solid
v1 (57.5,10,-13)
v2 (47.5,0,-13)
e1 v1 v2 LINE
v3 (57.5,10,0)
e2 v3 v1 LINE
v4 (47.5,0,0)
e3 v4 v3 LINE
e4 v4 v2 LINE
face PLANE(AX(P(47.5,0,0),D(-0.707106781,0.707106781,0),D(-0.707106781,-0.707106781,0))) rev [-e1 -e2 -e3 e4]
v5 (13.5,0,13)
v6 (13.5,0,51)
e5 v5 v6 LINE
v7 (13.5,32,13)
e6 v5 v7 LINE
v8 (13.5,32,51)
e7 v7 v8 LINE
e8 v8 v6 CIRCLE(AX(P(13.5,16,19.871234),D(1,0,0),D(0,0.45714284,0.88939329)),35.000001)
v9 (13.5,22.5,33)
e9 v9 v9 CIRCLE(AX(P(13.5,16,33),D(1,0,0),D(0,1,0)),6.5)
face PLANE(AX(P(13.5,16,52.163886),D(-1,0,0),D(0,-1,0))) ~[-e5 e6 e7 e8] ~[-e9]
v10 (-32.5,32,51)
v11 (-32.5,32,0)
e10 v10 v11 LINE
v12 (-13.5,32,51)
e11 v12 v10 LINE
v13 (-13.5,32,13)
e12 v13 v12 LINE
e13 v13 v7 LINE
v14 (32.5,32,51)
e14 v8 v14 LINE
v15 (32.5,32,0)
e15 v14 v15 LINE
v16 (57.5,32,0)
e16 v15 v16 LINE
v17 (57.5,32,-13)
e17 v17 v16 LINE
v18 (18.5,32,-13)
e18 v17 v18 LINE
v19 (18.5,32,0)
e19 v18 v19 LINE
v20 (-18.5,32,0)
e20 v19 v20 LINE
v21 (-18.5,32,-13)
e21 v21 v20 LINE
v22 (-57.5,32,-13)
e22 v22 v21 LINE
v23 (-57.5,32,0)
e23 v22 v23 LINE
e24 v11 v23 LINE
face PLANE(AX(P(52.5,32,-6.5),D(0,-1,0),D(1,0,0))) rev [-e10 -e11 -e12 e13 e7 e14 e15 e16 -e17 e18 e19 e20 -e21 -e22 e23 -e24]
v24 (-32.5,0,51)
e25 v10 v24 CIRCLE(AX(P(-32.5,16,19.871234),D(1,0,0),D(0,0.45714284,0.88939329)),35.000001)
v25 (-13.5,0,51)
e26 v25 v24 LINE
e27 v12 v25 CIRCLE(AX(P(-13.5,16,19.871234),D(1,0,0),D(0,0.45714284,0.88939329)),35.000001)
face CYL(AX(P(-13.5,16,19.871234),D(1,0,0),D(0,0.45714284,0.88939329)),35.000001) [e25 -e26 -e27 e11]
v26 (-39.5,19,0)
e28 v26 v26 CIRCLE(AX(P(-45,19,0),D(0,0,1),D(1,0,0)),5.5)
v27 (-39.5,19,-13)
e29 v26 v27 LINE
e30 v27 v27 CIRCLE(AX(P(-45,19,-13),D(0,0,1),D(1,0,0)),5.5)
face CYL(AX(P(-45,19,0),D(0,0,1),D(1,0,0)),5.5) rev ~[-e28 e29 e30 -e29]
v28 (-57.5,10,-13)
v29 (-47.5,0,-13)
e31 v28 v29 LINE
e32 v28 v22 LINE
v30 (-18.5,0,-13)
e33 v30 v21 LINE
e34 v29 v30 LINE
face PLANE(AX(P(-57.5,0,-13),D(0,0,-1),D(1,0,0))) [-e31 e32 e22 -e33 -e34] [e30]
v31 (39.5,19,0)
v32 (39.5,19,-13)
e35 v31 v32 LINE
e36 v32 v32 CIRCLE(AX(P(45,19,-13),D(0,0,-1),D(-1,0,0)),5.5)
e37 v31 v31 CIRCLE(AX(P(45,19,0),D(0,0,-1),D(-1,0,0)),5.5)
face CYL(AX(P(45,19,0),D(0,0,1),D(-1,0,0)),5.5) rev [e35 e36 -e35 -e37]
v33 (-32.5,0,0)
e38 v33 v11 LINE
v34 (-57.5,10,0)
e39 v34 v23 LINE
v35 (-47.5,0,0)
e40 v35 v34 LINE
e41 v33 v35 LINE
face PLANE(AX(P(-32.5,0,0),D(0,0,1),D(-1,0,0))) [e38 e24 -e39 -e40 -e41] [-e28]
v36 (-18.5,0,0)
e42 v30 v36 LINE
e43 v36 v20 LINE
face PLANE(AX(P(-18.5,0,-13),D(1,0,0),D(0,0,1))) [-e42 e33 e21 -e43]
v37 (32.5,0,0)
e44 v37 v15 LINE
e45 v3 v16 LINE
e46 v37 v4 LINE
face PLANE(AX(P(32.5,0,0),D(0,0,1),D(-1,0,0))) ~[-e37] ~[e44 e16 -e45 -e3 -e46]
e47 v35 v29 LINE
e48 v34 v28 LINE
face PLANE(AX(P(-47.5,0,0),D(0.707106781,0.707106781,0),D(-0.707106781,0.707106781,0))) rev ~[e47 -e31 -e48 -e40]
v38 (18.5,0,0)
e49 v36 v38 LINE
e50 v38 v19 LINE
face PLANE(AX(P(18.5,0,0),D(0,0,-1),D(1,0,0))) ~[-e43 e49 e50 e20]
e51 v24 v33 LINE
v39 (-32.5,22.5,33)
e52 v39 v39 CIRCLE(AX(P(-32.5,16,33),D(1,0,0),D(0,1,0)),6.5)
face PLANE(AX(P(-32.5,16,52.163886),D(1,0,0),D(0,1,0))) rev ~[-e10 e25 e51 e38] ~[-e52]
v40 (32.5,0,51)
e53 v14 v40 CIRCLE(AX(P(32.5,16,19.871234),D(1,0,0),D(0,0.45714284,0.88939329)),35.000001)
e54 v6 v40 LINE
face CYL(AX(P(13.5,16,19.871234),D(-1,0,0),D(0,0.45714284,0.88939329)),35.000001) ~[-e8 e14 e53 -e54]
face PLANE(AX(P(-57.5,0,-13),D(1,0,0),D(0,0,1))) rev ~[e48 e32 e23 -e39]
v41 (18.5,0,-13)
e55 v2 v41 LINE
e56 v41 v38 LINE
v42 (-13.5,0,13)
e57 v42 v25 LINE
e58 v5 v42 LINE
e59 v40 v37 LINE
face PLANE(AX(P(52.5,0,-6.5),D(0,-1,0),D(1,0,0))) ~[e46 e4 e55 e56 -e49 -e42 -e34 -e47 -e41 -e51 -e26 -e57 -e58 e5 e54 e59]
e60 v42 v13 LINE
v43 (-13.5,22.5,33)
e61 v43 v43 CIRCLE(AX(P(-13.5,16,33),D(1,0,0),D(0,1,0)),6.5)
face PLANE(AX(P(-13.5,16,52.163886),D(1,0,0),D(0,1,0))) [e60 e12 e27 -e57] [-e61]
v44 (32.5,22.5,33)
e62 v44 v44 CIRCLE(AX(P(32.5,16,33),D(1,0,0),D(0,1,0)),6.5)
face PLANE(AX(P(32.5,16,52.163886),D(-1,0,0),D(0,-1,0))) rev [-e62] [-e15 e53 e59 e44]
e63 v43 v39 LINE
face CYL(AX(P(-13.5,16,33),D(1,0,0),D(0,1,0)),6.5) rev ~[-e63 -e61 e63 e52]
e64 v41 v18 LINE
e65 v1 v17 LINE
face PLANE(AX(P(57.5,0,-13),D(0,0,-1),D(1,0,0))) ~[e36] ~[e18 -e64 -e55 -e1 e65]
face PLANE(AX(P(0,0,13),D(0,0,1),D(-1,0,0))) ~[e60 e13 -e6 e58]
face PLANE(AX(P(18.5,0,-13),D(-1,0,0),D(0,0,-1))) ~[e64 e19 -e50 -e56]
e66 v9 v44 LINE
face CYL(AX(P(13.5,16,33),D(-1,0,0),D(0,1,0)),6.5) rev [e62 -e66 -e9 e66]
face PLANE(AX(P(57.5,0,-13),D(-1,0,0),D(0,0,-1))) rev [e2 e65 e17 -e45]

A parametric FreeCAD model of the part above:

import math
import FreeCAD as App
import Part
import Sketcher

V = App.Vector
Q = App.Units.Quantity


def add_polygon(sketch, points):
    """Adds a closed chain of lines whose ends are joined by coincident constraints."""
    first, n = sketch.GeometryCount, len(points)
    for a, b in zip(points, points[1:] + points[:1]):
        sketch.addGeometry(Part.LineSegment(App.Vector(*a, 0), App.Vector(*b, 0)), False)
    for i in range(n):
        sketch.addConstraint(Sketcher.Constraint("Coincident", first + i, 2, first + (i + 1) % n, 1))

doc = App.newDocument("Part")
body = doc.addObject("PartDesign::Body", "Body")

sketch1 = body.newObject("Sketcher::SketchObject", "Sketch")
sketch1.AttachmentSupport = (doc.getObject("XZ_Plane"), [""])
sketch1.MapMode = "FlatFace"
add_polygon(sketch1, [(-58, 0), (-58, -13), (-18, -13), (-18, 0), (0, 0), (0, 13), (-14, 13), (-14, 51), (-32, 51), (-32, 0)])
sketch1.addConstraint(Sketcher.Constraint("Vertical", 0))
sketch1.addConstraint(Sketcher.Constraint("Horizontal", 1))
sketch1.addConstraint(Sketcher.Constraint("Vertical", 2))
sketch1.addConstraint(Sketcher.Constraint("Horizontal", 3))
sketch1.addConstraint(Sketcher.Constraint("Vertical", 4))
sketch1.addConstraint(Sketcher.Constraint("Horizontal", 5))
sketch1.addConstraint(Sketcher.Constraint("Vertical", 6))
sketch1.addConstraint(Sketcher.Constraint("Horizontal", 7))
sketch1.addConstraint(Sketcher.Constraint("Vertical", 8))
sketch1.addConstraint(Sketcher.Constraint("Horizontal", 9))
sketch1.addConstraint(Sketcher.Constraint("Coincident", 3, 2, -1, 1))
sketch1.addConstraint(Sketcher.Constraint("PointOnObject", 8, 2, -1))
sketch1.addConstraint(Sketcher.Constraint("Equal", 2, 4))
sketch1.addConstraint(Sketcher.Constraint("DistanceX", 1, 1, 1, 2, Q("39 mm")))
sketch1.addConstraint(Sketcher.Constraint("DistanceX", 7, 2, 7, 1, Q("19 mm")))
sketch1.addConstraint(Sketcher.Constraint("DistanceX", 9, 2, 9, 1, Q("25 mm")))
sketch1.addConstraint(Sketcher.Constraint("DistanceY", 0, 2, 0, 1, Q("13 mm")))
sketch1.addConstraint(Sketcher.Constraint("DistanceY", 6, 1, 6, 2, Q("38 mm")))
sketch1.addConstraint(Sketcher.Constraint("DistanceX", 3, 1, 3, 2, Q("18.5 mm")))
pad1 = body.newObject("PartDesign::Pad", "Pad")
pad1.Profile = sketch1
pad1.Length = 32
pad1.Reversed = True

sketch2 = body.newObject("Sketcher::SketchObject", "Sketch001")
sketch2.AttachmentSupport = (doc.getObject("XY_Plane"), [""])
sketch2.MapMode = "FlatFace"
sketch2.addGeometry(Part.Circle(V(-45, 19, 0), V(0, 0, 1), 6), False)
add_polygon(sketch2, [(-58, 0), (-48, 0), (-58, 10)])
sketch2.addConstraint(Sketcher.Constraint("Horizontal", 1))
sketch2.addConstraint(Sketcher.Constraint("Vertical", 3))
sketch2.addConstraint(Sketcher.Constraint("PointOnObject", 1, 2, -1))
sketch2.addConstraint(Sketcher.Constraint("Equal", 1, 3))
sketch2.addConstraint(Sketcher.Constraint("Diameter", 0, Q("11 mm")))
sketch2.addConstraint(Sketcher.Constraint("DistanceX", 1, 1, 1, 2, Q("10 mm")))
sketch2.addConstraint(Sketcher.Constraint("DistanceX", 0, 3, -1, 1, Q("45 mm")))
sketch2.addConstraint(Sketcher.Constraint("DistanceY", -1, 1, 0, 3, Q("19 mm")))
sketch2.addConstraint(Sketcher.Constraint("DistanceX", 1, 2, -1, 1, Q("47.5 mm")))
pocket1 = body.newObject("PartDesign::Pocket", "Pocket")
pocket1.Profile = sketch2
pocket1.Length = 25

sketch3 = body.newObject("Sketcher::SketchObject", "Sketch002")
sketch3.AttachmentSupport = (doc.getObject("YZ_Plane"), [""])
sketch3.MapMode = "FlatFace"
sketch3.AttachmentOffset = App.Placement(V(0, 0, -13.5), App.Rotation())
sketch3.addGeometry(Part.Circle(V(16, 33, 0), V(0, 0, 1), 6), False)
sketch3.addConstraint(Sketcher.Constraint("Diameter", 0, Q("13 mm")))
sketch3.addConstraint(Sketcher.Constraint("DistanceX", -1, 1, 0, 3, Q("16 mm")))
sketch3.addConstraint(Sketcher.Constraint("DistanceY", -1, 1, 0, 3, Q("33 mm")))
pocket2 = body.newObject("PartDesign::Pocket", "Pocket001")
pocket2.Profile = sketch3
pocket2.Length = 25

sketch4 = body.newObject("Sketcher::SketchObject", "Sketch003")
sketch4.AttachmentSupport = (doc.getObject("YZ_Plane"), [""])
sketch4.MapMode = "FlatFace"
sketch4.AttachmentOffset = App.Placement(V(0, 0, -13.5), App.Rotation())
sketch4.addGeometry(Part.LineSegment(V(0, 51, 0), V(32, 51, 0)), False)
sketch4.addGeometry(Part.ArcOfCircle(Part.Circle(V(16, 20, 0), V(0, 0, 1), 35), math.radians(63), math.radians(117)), False)
sketch4.addConstraint(Sketcher.Constraint("Coincident", 0, 1, 1, 2))
sketch4.addConstraint(Sketcher.Constraint("Coincident", 1, 1, 0, 2))
sketch4.addConstraint(Sketcher.Constraint("Horizontal", 0))
sketch4.addConstraint(Sketcher.Constraint("PointOnObject", 0, 1, -2))
sketch4.addConstraint(Sketcher.Constraint("Radius", 1, Q("35.000001 mm")))
sketch4.addConstraint(Sketcher.Constraint("DistanceX", 0, 1, 0, 2, Q("32 mm")))
sketch4.addConstraint(Sketcher.Constraint("DistanceY", -1, 1, 0, 1, Q("51 mm")))
pad2 = body.newObject("PartDesign::Pad", "Pad001")
pad2.Profile = sketch4
pad2.Length = 19
pad2.Reversed = True
body2 = doc.addObject("PartDesign::Body", "Body001")
doc.recompute()

body2.BaseFeature = body
doc.recompute()

mirroring = doc.addObject("Part::Mirroring", "Mirroring")
mirroring.Source = body
mirroring.Base = V(0, 0, 0)
mirroring.Normal = V(1, 0, 0)
body3 = doc.addObject("PartDesign::Body", "Body002")
body3.BaseFeature = mirroring
boolean = body2.newObject("PartDesign::Boolean", "Boolean")
boolean.Type = "Fuse"
boolean.addObjects([body3])
doc.recompute()
mirroring.Visibility = False

doc.recompute()
